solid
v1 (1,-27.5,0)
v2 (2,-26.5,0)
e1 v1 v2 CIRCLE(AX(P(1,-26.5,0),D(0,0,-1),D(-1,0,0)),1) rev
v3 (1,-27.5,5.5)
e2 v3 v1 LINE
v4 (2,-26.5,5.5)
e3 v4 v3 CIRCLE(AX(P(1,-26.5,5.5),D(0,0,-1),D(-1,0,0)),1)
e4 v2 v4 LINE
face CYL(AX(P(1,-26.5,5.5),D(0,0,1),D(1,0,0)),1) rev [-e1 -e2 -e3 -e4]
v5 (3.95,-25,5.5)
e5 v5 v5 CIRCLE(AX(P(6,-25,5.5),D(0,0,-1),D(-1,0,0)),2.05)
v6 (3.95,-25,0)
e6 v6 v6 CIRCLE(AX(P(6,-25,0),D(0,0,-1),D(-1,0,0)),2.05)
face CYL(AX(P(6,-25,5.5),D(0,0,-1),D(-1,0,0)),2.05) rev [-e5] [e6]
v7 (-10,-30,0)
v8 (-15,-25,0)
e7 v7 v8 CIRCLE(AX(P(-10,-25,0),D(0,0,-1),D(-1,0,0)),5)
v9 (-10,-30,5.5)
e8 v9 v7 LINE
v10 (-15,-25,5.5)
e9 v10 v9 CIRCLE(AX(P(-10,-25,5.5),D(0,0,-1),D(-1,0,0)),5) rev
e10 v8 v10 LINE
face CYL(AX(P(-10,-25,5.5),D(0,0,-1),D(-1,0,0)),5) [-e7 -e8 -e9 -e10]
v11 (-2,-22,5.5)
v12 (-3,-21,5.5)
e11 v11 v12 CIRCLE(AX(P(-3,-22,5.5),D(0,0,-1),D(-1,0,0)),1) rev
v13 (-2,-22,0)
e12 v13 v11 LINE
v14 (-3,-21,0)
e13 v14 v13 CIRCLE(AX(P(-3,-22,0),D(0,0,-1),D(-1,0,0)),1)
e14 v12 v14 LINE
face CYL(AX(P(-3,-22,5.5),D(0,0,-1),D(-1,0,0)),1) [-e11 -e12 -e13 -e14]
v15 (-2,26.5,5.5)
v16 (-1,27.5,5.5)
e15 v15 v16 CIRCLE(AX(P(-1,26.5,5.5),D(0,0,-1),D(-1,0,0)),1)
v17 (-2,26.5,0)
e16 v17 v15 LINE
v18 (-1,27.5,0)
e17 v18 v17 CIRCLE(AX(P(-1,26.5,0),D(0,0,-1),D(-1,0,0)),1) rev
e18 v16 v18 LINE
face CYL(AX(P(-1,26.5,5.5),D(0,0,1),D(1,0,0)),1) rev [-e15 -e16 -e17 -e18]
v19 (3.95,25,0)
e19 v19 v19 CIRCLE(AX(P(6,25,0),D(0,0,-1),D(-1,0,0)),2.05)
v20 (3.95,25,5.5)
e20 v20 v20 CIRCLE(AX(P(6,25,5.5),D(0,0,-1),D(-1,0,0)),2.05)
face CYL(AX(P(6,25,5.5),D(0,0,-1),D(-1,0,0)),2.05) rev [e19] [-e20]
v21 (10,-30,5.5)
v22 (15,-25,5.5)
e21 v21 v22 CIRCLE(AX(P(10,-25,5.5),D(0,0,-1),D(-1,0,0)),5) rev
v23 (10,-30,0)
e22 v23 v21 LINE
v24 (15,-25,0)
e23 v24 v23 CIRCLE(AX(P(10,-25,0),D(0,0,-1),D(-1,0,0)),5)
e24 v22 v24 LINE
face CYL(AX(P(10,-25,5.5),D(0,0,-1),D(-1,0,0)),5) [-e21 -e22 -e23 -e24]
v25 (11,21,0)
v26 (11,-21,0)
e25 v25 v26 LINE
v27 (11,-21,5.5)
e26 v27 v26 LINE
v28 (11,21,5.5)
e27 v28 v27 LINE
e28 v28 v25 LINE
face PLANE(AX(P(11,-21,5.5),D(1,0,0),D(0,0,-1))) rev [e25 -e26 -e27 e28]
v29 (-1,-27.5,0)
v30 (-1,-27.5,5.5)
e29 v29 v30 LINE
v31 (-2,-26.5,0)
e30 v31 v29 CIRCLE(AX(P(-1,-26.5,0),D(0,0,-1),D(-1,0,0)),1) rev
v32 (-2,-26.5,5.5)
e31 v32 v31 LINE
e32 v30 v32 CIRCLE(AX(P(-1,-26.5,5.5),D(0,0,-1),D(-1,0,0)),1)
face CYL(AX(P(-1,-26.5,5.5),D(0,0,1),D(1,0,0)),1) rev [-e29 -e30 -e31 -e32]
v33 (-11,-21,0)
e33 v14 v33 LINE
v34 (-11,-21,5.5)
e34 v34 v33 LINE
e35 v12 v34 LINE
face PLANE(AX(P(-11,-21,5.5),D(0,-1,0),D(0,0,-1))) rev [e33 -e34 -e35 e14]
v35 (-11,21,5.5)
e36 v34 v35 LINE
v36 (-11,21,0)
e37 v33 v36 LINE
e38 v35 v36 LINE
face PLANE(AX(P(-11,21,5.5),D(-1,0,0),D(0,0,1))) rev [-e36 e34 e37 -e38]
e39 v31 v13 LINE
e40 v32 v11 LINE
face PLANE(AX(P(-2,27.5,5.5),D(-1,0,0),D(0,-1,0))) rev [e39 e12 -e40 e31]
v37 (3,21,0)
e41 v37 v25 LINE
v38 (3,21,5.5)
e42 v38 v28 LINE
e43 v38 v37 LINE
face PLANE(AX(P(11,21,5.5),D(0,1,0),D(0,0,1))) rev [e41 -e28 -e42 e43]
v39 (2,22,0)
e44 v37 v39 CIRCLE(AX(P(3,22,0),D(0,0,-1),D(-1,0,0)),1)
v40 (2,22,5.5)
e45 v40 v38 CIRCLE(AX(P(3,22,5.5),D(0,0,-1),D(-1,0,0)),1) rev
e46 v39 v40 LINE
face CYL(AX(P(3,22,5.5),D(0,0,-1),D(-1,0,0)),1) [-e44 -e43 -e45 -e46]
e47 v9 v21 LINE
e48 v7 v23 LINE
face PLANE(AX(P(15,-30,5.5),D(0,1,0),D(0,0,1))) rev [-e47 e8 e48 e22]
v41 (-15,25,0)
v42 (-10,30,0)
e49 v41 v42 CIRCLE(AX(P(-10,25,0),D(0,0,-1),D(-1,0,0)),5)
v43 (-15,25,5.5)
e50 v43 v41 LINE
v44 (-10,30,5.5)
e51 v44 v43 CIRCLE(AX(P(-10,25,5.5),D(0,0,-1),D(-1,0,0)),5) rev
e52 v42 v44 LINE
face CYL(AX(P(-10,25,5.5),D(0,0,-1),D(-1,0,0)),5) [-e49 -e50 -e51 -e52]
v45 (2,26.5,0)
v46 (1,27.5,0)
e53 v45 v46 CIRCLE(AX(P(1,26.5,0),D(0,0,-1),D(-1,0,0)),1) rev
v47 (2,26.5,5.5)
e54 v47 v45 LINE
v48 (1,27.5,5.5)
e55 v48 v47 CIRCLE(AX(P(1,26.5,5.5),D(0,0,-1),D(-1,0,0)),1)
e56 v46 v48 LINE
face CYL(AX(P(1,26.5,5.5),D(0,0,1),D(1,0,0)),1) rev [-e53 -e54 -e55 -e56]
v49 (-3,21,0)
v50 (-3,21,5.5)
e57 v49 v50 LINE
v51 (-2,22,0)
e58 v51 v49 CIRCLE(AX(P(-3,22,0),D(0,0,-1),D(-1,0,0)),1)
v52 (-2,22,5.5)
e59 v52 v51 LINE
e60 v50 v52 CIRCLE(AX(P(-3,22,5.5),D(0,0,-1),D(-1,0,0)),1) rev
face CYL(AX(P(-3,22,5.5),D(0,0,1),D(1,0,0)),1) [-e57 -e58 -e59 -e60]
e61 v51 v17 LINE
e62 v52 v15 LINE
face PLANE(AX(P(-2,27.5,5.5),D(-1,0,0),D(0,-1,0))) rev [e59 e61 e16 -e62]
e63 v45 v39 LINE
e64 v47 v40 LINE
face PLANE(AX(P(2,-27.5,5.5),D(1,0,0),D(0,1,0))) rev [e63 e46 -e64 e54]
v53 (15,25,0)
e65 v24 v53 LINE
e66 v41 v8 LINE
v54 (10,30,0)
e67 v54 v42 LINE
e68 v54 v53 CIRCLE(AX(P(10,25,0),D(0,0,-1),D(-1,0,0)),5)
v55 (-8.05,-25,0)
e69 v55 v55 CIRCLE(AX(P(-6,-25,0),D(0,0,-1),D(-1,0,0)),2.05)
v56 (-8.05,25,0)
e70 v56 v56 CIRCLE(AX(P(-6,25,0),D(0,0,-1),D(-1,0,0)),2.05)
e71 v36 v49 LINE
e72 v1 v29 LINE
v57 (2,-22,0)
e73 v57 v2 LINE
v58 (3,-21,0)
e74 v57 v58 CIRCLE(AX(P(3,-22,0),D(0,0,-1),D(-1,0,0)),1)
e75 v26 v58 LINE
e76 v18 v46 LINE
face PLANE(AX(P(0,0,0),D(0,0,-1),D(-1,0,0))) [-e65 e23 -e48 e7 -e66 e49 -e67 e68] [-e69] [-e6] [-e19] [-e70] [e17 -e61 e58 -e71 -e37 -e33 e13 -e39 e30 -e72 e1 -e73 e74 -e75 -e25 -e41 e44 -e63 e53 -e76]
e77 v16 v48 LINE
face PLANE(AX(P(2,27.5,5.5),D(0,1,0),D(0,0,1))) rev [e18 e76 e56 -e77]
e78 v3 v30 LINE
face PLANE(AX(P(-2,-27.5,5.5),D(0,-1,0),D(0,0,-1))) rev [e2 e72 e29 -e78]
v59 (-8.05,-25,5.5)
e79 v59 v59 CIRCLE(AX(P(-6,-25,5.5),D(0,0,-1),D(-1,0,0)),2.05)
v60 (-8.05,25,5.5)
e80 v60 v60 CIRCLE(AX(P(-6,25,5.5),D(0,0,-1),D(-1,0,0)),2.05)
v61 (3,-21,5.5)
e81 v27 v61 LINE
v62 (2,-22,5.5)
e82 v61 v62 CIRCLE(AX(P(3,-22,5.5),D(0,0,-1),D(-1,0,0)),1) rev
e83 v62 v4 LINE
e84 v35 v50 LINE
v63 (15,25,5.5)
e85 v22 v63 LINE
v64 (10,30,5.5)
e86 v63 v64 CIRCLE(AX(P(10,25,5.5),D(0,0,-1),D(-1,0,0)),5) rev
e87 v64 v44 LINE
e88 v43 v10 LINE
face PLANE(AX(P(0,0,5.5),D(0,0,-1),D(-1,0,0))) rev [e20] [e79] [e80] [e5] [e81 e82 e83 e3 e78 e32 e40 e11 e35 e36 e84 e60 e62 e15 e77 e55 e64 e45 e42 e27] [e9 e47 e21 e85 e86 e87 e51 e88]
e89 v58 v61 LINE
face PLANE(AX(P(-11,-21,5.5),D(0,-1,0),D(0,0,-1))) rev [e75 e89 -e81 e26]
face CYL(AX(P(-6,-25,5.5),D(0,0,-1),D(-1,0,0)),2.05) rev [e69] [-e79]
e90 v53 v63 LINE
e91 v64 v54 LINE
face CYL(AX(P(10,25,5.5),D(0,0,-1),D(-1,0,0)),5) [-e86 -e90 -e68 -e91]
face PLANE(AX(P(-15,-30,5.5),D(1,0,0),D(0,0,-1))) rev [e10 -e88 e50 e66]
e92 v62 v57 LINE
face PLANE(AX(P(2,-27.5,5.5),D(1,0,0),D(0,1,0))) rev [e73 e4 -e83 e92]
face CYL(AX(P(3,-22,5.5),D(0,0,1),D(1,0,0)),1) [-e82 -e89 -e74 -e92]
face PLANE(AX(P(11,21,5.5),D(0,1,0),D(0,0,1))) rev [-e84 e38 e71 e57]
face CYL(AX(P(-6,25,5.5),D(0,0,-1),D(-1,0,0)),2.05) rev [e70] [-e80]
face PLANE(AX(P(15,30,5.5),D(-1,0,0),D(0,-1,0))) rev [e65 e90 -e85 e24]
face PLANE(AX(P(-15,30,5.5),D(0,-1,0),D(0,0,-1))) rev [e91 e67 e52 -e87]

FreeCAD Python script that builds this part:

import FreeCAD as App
import Part
import Sketcher
from FreeCAD import Vector
Q = App.Units.Quantity


def edges_at(feature, points):
    """Names of the edges that pass closest to the given points."""
    edges = feature.Shape.Edges
    near = lambda p: min(range(len(edges)), key=lambda i: edges[i].distToShape(Part.Vertex(*p))[0])
    return sorted({f"Edge{near(p) + 1}" for p in points})


def add_polygon(sketch, points):
    """Adds a closed chain of lines whose ends are joined by coincident constraints."""
    first, n = sketch.GeometryCount, len(points)
    for a, b in zip(points, points[1:] + points[:1]):
        sketch.addGeometry(Part.LineSegment(App.Vector(*a, 0), App.Vector(*b, 0)), False)
    for i in range(n):
        sketch.addConstraint(Sketcher.Constraint("Coincident", first + i, 2, first + (i + 1) % n, 1))

doc = App.newDocument("Part")
body = doc.addObject("PartDesign::Body", "Body")

# Sketch on XY plane
sketch1 = body.newObject("Sketcher::SketchObject", "Sketch")
sketch1.AttachmentSupport = (doc.getObject("XY_Plane"), [""])
sketch1.MapMode = "FlatFace"
add_polygon(sketch1, [(-15, 30), (-15, -30), (15, -30), (15, 30)])  # lines 0-3
sketch1.addConstraint([
    Sketcher.Constraint("Vertical", 0),
    Sketcher.Constraint("Horizontal", 1),
    Sketcher.Constraint("Vertical", 2),
    Sketcher.Constraint("Horizontal", 3),
    Sketcher.Constraint("Symmetric", 0, 2, 2, 2, -1, 1),
    Sketcher.Constraint("DistanceX", 1, 1, 1, 2, Q("30 mm")),
    Sketcher.Constraint("DistanceY", 0, 2, 0, 1, Q("60 mm")),
])
pad1 = body.newObject("PartDesign::Pad", "Pad")
pad1.Profile = sketch1
pad1.Length = 5.5

# Sketch on XY plane
sketch2 = body.newObject("Sketcher::SketchObject", "Sketch001")
sketch2.AttachmentSupport = (doc.getObject("XY_Plane"), [""])
sketch2.MapMode = "FlatFace"
add_polygon(sketch2, [(11, 21), (11, -21), (-11, -21), (-11, 21)])  # lines 0-3
sketch2.addConstraint([
    Sketcher.Constraint("Vertical", 0),
    Sketcher.Constraint("Horizontal", 1),
    Sketcher.Constraint("Vertical", 2),
    Sketcher.Constraint("Horizontal", 3),
    Sketcher.Constraint("Symmetric", 0, 2, 2, 2, -1, 1),
    Sketcher.Constraint("DistanceX", 1, 2, 1, 1, Q("22 mm")),
    Sketcher.Constraint("DistanceY", 0, 2, 0, 1, Q("42 mm")),
])
pocket1 = body.newObject("PartDesign::Pocket", "Pocket")
pocket1.Profile = sketch2
pocket1.Type = "ThroughAll"
pocket1.Reversed = True

# Sketch on XY plane
sketch3 = body.newObject("Sketcher::SketchObject", "Sketch002")
sketch3.AttachmentSupport = (doc.getObject("XY_Plane"), [""])
sketch3.MapMode = "FlatFace"
sketch3.addGeometry(Part.Circle(Vector(6, 25, 0), Vector(0, 0, 1), 2), False)  # 0
sketch3.addGeometry(Part.Circle(Vector(-6, 25, 0), Vector(0, 0, 1), 2), False)  # 1
sketch3.addGeometry(Part.Circle(Vector(6, -25, 0), Vector(0, 0, 1), 2), False)  # 2
sketch3.addGeometry(Part.Circle(Vector(-6, -25, 0), Vector(0, 0, 1), 2), False)  # 3
add_polygon(sketch3, [(2, 27.5), (2, -27.5), (-2, -27.5), (-2, 27.5)])  # lines 4-7
sketch3.addConstraint([
    Sketcher.Constraint("Vertical", 4),
    Sketcher.Constraint("Horizontal", 5),
    Sketcher.Constraint("Vertical", 6),
    Sketcher.Constraint("Horizontal", 7),
    Sketcher.Constraint("Equal", 0, 1),
    Sketcher.Constraint("Equal", 1, 2),
    Sketcher.Constraint("Equal", 2, 3),
    Sketcher.Constraint("Symmetric", 1, 3, 2, 3, -1, 1),
    Sketcher.Constraint("Symmetric", 0, 3, 3, 3, -1, 1),
    Sketcher.Constraint("Symmetric", 4, 2, 6, 2, -1, 1),
    Sketcher.Constraint("Symmetric", 0, 3, 1, 3, -2),
    Sketcher.Constraint("Diameter", 0, Q("4.1 mm")),
    Sketcher.Constraint("DistanceX", 5, 2, 5, 1, Q("4 mm")),
    Sketcher.Constraint("DistanceY", 4, 2, 4, 1, Q("55 mm")),
    Sketcher.Constraint("DistanceX", -1, 1, 0, 3, Q("6 mm")),
    Sketcher.Constraint("DistanceY", -1, 1, 0, 3, Q("25 mm")),
])
pocket2 = body.newObject("PartDesign::Pocket", "Pocket001")
pocket2.Profile = sketch3
pocket2.Type = "ThroughAll"
pocket2.Reversed = True
doc.recompute()

fillet = body.newObject("PartDesign::Fillet", "Fillet")
fillet.Base = (pocket2, edges_at(pocket2, [
    (-15, 30, 2.75),
    (15, 30, 2.75),
    (15, -30, 2.75),
    (-15, -30, 2.75),
]))
fillet.Radius = 5
doc.recompute()

fillet2 = body.newObject("PartDesign::Fillet", "Fillet001")
fillet2.Base = (fillet, edges_at(fillet, [
    (2, -21, 2.75),
    (-2, -21, 2.75),
    (-2, 21, 2.75),
    (-2, 27.5, 2.75),
    (2, 21, 2.75),
    (2, -27.5, 2.75),
    (-2, -27.5, 2.75),
    (2, 27.5, 2.75),
]))
fillet2.Radius = 1

doc.recompute()
